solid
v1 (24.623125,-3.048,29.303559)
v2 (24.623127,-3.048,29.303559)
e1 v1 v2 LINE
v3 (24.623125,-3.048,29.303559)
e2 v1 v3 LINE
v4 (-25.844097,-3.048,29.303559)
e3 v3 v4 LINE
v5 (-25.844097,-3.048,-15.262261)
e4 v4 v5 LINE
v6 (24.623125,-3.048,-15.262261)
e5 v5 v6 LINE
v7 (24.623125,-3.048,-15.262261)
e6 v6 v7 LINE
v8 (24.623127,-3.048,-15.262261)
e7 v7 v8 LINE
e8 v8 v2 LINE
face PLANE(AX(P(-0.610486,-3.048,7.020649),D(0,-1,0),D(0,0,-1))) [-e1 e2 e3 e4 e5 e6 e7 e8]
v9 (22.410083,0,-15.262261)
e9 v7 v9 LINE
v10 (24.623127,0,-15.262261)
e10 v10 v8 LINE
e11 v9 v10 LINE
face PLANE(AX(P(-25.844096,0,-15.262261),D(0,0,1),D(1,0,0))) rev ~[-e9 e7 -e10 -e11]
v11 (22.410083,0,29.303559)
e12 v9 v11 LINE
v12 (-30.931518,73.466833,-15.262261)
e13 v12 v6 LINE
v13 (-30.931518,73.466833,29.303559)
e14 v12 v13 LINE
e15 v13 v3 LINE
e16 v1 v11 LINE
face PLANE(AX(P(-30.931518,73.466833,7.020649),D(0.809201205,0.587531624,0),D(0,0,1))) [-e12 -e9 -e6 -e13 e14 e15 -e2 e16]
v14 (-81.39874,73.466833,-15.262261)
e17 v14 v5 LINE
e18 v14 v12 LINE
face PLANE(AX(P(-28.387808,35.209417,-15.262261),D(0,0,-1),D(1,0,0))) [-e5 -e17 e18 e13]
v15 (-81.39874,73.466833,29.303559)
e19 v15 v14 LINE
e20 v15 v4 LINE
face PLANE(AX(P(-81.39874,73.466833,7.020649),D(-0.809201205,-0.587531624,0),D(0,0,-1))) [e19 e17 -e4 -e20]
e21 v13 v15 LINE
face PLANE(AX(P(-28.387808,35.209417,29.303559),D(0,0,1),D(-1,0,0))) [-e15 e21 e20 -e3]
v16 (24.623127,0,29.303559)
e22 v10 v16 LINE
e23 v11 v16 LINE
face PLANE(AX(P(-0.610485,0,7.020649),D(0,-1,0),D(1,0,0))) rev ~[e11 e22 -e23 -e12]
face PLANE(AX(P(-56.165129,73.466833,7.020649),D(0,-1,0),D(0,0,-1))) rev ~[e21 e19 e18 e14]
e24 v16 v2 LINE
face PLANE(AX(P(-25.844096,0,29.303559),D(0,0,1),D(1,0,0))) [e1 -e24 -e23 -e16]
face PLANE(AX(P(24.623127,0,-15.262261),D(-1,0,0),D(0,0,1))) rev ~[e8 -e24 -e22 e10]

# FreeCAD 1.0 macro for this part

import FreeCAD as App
import Part
import Sketcher

V = App.Vector
Q = App.Units.Quantity


def add_polygon(sketch, points):
    """Adds a closed chain of lines whose ends are joined by coincident constraints."""
    first, n = sketch.GeometryCount, len(points)
    for a, b in zip(points, points[1:] + points[:1]):
        sketch.addGeometry(Part.LineSegment(App.Vector(*a, 0), App.Vector(*b, 0)), False)
    for i in range(n):
        sketch.addConstraint(Sketcher.Constraint("Coincident", first + i, 2, first + (i + 1) % n, 1))

doc = App.newDocument("Part")
body = doc.addObject("PartDesign::Body", "Body")

sketch1 = body.newObject("Sketcher::SketchObject", "Sketch")
sketch1.AttachmentSupport = (doc.getObject("XZ_Plane"), [""])
sketch1.MapMode = "FlatFace"
add_polygon(sketch1, [(-25.844096, 29.303559), (-25.844096, -15.262261), (24.623127, -15.262261), (24.623127, 29.303559)])
sketch1.addConstraint([
    Sketcher.Constraint("Vertical", 0),
    Sketcher.Constraint("Horizontal", 1),
    Sketcher.Constraint("Vertical", 2),
    Sketcher.Constraint("Horizontal", 3),
    Sketcher.Constraint("DistanceY", 0, 2, 0, 1, Q("44.565819 mm")),
    Sketcher.Constraint("DistanceX", 1, 1, 1, 2, Q("50.467223 mm")),
    Sketcher.Constraint("DistanceY", 0, 2, -1, 1, Q("15.262261 mm")),
    Sketcher.Constraint("DistanceX", 0, 2, -1, 1, Q("25.844096 mm")),
])
pad1 = body.newObject("PartDesign::Pad", "Pad")
pad1.Profile = sketch1
pad1.Length = Q("0.12 in")

sketch2 = body.newObject("Sketcher::SketchObject", "Sketch001")
sketch2.AttachmentSupport = (doc.getObject("XZ_Plane"), [""])
sketch2.MapMode = "FlatFace"
sketch2.AttachmentOffset = App.Placement(V(0, 0, 0.12 * 25.4), App.Rotation())
add_polygon(sketch2, [(-25.844097, 29.303559), (-25.844097, -15.262261), (24.623125, -15.262261), (24.623125, 29.303559)])
sketch2.addConstraint([
    Sketcher.Constraint("Vertical", 0),
    Sketcher.Constraint("Horizontal", 1),
    Sketcher.Constraint("Vertical", 2),
    Sketcher.Constraint("Horizontal", 3),
    Sketcher.Constraint("DistanceY", 0, 2, 0, 1, Q("44.56582 mm")),
    Sketcher.Constraint("DistanceX", 1, 1, 1, 2, Q("50.467222 mm")),
    Sketcher.Constraint("DistanceY", 0, 2, -1, 1, Q("15.262261 mm")),
    Sketcher.Constraint("DistanceX", 0, 2, -1, 1, Q("25.844097 mm")),
])

sketch3 = body.newObject("Sketcher::SketchObject", "Sketch002")
sketch3.Placement = App.Placement(V(0, 0, 0), App.Rotation(V(0.587531624, -0.809201205, 0), V(0, 0, 0.999999999), V(-0.809201205, -0.587531624, 0), "ZXY"))
sketch3.addGeometry(Part.LineSegment(V(-94.556005, 0, 0), V(0, 0, 0)), False)
sketch3.addConstraint([
    Sketcher.Constraint("Horizontal", 0),
    Sketcher.Constraint("Coincident", 0, 2, -1, 1),
    Sketcher.Constraint("DistanceX", 0, 1, 0, 2, Q("94.556005 mm")),
])
doc.recompute()

additivepipe = body.newObject("PartDesign::AdditivePipe", "AdditivePipe")
additivepipe.Profile = sketch2
additivepipe.Spine = (sketch3, ["Edge1"])

doc.recompute()
